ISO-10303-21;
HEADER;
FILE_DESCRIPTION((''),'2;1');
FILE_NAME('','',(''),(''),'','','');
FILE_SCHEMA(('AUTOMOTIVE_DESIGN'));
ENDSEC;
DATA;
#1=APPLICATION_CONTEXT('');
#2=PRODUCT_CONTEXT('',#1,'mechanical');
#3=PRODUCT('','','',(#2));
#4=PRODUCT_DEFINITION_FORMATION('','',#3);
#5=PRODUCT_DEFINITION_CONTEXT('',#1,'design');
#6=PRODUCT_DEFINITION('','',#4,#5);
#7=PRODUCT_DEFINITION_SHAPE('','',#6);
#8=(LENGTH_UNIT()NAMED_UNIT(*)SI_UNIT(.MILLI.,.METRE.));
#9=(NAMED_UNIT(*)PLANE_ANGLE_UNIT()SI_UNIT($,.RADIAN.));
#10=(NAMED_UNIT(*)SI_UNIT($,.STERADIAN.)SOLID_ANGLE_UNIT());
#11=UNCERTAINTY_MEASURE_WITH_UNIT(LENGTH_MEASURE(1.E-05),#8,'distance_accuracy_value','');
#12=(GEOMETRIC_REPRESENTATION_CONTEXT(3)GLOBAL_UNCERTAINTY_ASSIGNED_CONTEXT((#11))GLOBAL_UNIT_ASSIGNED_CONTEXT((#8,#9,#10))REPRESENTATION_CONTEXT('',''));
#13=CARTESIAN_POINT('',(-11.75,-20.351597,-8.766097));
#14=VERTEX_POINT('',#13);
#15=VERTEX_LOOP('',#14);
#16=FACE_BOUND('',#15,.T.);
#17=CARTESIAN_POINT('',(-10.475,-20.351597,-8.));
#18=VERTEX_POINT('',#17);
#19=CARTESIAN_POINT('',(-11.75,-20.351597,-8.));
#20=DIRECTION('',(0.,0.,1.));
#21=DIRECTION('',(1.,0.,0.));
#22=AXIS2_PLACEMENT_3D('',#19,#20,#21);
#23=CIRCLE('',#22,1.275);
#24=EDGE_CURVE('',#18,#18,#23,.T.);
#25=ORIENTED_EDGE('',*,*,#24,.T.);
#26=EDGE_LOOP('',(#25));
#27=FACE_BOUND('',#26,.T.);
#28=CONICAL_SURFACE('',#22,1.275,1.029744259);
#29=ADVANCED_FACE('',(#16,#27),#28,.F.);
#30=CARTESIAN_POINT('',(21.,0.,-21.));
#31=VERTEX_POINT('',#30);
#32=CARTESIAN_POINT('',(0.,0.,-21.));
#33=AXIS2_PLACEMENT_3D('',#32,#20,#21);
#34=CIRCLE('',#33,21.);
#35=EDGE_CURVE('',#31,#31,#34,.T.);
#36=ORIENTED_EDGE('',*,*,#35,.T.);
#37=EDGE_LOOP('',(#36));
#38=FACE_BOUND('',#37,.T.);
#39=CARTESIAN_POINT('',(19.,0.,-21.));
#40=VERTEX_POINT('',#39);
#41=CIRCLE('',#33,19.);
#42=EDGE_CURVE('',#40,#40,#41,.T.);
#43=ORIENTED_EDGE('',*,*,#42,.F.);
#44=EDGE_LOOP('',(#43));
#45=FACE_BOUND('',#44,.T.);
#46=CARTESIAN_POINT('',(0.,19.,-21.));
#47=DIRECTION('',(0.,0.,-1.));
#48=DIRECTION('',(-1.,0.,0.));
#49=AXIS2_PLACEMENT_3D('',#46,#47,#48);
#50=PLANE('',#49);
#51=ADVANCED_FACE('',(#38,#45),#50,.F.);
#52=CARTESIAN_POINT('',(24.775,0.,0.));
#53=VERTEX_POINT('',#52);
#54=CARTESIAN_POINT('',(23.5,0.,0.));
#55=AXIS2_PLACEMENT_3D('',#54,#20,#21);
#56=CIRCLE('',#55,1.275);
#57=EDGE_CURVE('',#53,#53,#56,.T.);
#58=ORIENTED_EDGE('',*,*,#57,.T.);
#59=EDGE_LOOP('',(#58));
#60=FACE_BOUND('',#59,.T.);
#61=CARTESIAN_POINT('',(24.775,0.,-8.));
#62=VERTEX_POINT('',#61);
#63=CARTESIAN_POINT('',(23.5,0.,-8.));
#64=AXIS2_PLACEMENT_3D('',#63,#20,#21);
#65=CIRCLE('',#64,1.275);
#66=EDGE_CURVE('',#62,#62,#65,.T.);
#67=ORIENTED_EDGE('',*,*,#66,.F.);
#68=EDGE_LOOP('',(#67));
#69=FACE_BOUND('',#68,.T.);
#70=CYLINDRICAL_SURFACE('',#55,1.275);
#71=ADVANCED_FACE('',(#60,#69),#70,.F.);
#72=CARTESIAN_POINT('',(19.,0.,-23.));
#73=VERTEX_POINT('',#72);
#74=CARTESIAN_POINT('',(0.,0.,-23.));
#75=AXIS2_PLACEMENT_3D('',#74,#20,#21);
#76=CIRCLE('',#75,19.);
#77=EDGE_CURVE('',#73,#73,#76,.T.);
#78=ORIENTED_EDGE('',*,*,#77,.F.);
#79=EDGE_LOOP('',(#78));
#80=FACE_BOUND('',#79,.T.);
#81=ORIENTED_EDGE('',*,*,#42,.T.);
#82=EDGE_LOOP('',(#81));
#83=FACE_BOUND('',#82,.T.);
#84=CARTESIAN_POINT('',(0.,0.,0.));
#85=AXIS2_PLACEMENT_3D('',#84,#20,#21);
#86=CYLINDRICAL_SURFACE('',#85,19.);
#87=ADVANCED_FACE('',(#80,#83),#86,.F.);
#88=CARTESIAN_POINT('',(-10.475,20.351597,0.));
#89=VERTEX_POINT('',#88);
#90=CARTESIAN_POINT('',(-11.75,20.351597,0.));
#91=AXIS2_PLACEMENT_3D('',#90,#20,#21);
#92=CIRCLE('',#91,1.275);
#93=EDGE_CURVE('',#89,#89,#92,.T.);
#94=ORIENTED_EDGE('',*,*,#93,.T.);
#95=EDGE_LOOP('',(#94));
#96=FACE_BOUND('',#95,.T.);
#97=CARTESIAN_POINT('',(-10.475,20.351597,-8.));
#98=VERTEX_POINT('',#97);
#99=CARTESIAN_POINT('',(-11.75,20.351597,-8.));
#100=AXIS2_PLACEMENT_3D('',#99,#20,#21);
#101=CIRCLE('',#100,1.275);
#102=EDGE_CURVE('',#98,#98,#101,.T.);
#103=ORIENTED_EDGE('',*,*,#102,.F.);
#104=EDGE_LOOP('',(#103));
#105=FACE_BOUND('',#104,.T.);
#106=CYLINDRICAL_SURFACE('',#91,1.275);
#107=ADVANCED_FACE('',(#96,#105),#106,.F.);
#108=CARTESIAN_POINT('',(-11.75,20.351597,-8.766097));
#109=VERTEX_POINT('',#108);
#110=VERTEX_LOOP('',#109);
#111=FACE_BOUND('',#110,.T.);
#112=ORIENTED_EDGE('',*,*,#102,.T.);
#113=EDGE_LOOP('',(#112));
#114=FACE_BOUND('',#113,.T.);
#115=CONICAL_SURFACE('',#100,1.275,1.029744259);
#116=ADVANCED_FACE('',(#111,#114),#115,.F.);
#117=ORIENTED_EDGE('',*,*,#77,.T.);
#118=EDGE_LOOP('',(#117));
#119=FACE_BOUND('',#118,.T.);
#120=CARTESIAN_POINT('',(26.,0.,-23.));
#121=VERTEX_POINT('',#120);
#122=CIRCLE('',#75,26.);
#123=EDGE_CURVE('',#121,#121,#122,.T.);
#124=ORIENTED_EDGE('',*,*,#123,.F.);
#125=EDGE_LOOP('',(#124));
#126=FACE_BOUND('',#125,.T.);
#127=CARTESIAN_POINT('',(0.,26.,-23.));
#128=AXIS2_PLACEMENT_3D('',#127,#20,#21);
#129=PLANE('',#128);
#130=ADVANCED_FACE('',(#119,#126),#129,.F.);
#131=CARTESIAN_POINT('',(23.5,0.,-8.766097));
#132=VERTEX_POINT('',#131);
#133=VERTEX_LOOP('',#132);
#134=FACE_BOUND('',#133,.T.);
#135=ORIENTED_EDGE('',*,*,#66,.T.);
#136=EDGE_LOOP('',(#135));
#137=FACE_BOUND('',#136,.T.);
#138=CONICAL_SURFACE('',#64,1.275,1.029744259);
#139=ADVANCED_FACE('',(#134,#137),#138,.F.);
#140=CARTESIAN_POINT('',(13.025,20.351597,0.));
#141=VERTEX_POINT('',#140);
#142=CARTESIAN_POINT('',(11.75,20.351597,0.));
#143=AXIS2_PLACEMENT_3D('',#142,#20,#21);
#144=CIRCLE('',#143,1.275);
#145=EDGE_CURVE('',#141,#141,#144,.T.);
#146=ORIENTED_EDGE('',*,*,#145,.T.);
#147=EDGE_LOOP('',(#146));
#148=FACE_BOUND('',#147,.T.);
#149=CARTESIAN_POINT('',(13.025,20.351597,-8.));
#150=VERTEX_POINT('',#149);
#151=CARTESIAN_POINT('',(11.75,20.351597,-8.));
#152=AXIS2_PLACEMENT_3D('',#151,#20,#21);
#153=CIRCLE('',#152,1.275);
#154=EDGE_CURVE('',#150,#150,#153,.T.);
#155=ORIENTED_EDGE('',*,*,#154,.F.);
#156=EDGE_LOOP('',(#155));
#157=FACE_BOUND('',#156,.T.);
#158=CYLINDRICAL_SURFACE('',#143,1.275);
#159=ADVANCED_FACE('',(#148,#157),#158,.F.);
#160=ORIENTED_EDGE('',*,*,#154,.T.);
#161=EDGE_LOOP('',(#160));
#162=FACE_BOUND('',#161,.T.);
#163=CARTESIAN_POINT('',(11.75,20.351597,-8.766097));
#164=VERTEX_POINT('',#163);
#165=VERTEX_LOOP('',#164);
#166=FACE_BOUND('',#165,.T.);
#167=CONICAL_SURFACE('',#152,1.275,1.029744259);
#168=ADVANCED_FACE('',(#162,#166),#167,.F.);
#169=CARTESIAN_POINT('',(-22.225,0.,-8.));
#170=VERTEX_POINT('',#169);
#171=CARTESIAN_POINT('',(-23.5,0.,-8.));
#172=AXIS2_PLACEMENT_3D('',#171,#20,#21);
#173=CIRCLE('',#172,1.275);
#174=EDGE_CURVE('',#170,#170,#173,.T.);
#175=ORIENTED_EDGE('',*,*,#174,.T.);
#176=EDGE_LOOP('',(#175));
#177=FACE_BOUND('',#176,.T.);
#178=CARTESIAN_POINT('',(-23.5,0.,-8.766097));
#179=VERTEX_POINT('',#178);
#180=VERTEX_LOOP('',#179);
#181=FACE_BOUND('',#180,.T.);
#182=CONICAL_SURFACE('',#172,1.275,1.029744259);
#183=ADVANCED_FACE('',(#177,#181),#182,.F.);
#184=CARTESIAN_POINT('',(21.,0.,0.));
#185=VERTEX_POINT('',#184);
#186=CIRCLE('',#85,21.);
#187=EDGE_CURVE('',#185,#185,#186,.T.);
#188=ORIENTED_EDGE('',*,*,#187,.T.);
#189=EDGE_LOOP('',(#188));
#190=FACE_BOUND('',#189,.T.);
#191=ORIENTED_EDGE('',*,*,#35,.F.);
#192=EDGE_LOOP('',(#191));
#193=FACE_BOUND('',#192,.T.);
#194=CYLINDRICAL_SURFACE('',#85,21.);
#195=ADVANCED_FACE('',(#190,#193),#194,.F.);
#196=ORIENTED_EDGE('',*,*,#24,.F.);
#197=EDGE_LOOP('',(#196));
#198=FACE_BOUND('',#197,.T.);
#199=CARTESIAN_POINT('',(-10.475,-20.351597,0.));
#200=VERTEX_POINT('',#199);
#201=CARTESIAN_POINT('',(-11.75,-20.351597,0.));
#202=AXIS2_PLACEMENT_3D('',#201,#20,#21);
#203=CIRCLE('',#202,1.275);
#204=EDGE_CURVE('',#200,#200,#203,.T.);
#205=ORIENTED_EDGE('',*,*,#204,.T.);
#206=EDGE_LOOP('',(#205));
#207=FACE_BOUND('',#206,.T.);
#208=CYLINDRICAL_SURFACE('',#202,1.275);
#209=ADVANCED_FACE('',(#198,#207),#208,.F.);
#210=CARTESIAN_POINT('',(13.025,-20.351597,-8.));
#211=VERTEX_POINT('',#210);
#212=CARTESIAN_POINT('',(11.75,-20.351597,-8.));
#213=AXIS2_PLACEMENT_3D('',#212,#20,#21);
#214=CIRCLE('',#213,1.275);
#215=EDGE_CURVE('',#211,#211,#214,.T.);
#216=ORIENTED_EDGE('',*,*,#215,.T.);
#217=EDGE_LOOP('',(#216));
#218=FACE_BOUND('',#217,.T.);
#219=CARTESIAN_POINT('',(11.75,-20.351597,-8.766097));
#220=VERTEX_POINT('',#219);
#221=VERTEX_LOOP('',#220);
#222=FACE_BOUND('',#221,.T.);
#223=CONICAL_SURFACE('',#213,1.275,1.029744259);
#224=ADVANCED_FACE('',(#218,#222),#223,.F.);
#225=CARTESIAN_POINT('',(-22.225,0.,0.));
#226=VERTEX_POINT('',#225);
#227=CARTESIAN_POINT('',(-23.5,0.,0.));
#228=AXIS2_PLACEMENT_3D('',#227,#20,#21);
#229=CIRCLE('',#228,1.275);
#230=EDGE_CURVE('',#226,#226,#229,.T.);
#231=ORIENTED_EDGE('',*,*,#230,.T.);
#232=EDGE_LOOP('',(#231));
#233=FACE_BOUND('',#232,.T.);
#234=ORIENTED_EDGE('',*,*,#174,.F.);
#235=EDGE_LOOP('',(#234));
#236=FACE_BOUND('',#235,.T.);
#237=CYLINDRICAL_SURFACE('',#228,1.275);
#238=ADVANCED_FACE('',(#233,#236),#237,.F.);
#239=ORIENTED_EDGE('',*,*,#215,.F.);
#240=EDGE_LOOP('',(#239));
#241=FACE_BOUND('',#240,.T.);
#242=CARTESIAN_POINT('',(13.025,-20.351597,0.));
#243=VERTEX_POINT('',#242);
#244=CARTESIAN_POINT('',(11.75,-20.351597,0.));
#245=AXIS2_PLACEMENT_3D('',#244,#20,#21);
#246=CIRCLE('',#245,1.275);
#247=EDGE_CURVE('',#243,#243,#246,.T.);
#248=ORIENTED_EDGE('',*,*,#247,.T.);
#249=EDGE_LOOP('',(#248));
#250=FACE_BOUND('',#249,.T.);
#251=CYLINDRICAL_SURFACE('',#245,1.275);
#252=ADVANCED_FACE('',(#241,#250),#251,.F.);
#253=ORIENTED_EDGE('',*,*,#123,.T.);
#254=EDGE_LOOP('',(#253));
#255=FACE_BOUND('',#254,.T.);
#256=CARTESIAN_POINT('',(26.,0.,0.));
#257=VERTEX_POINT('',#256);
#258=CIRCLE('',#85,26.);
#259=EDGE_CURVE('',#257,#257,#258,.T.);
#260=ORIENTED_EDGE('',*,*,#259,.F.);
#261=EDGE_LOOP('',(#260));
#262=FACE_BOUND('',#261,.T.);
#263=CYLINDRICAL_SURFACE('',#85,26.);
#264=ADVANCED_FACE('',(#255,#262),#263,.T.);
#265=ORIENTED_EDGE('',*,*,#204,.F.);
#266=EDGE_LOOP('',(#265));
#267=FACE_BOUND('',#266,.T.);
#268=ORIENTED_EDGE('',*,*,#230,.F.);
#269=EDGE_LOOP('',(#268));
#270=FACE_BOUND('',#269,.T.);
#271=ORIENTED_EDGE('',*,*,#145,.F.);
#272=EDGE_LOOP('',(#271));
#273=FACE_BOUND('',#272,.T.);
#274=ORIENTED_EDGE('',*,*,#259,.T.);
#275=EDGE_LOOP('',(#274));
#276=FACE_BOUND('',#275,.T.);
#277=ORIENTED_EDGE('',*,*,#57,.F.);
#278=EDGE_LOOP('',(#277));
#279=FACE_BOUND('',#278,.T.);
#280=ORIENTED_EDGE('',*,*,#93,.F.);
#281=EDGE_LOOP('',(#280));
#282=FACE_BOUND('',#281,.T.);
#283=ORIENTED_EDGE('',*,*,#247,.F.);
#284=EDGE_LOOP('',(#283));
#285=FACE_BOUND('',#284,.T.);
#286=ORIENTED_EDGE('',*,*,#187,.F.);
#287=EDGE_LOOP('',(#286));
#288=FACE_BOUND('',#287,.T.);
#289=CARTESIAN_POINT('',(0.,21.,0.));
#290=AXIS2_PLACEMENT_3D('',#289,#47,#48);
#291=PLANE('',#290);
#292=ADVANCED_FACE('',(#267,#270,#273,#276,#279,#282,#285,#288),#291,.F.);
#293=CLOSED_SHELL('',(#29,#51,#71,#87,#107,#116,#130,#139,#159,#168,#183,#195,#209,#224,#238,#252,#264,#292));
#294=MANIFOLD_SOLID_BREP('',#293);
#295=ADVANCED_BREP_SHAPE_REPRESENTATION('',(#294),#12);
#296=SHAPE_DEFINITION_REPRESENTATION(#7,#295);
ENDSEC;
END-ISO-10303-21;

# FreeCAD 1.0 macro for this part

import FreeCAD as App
import Part
import Sketcher
from FreeCAD import Vector
Q = App.Units.Quantity

doc = App.newDocument("Part")
body = doc.addObject("PartDesign::Body", "Body")

# Sketch on YZ plane
sketch1 = doc.addObject("Sketcher::SketchObject", "Sketch")
body.addObject(sketch1)
sketch1.AttachmentSupport = (doc.YZ_Plane, [""])
sketch1.MapMode = "FlatFace"
sketch1.addGeometry([
    Part.LineSegment(Vector(26, -23, 0), Vector(26, 0, 0)),  # 0
    Part.LineSegment(Vector(26, 0, 0), Vector(21, 0, 0)),  # 1
    Part.LineSegment(Vector(21, 0, 0), Vector(21, -21, 0)),  # 2
    Part.LineSegment(Vector(21, -21, 0), Vector(19, -21, 0)),  # 3
    Part.LineSegment(Vector(19, -21, 0), Vector(19, -23, 0)),  # 4
    Part.LineSegment(Vector(19, -23, 0), Vector(26, -23, 0)),  # 5
], False)
sketch1.addConstraint([
    Sketcher.Constraint("Coincident", 0, 2, 1, 1),
    Sketcher.Constraint("Coincident", 1, 2, 2, 1),
    Sketcher.Constraint("Coincident", 2, 2, 3, 1),
    Sketcher.Constraint("Coincident", 3, 2, 4, 1),
    Sketcher.Constraint("Coincident", 4, 2, 5, 1),
    Sketcher.Constraint("Coincident", 5, 2, 0, 1),
    Sketcher.Constraint("Vertical", 0),
    Sketcher.Constraint("Horizontal", 1),
    Sketcher.Constraint("Vertical", 2),
    Sketcher.Constraint("Horizontal", 3),
    Sketcher.Constraint("Vertical", 4),
    Sketcher.Constraint("Horizontal", 5),
    Sketcher.Constraint("PointOnObject", 0, 2, -1),
    Sketcher.Constraint("Equal", 3, 4),
    Sketcher.Constraint("DistanceX", 1, 2, 1, 1, 5.0),
    Sketcher.Constraint("DistanceX", 3, 2, 3, 1, 2.0),
    Sketcher.Constraint("DistanceY", 0, 1, 0, 2, 23.0),
    Sketcher.Constraint("DistanceX", -1, 1, 0, 2, 26.0),
])
revolution = doc.addObject("PartDesign::Revolution", "Revolution")
body.addObject(revolution)
revolution.Profile = sketch1
revolution.ReferenceAxis = (sketch1, ["V_Axis"])
revolution.Angle = 360

# Sketch on YZ plane
sketch2 = doc.addObject("Sketcher::SketchObject", "Sketch001")
body.addObject(sketch2)
sketch2.AttachmentSupport = (doc.YZ_Plane, [""])
sketch2.MapMode = "FlatFace"
sketch2.AttachmentOffset = App.Placement(Vector(0, 0, 23.5), App.Rotation())
sketch2.addGeometry([
    Part.LineSegment(Vector(0, -8.8, 0), Vector(0, 0, 0)),
    Part.LineSegment(Vector(0, 0, 0), Vector(-1.3, 0, 0)),
    Part.LineSegment(Vector(-1.3, 0, 0), Vector(-1.3, -8, 0)),
    Part.LineSegment(Vector(-1.3, -8, 0), Vector(0, -8.8, 0)),
], False)
sketch2.addConstraint([
    Sketcher.Constraint("Coincident", 0, 2, 1, 1),
    Sketcher.Constraint("Coincident", 1, 2, 2, 1),
    Sketcher.Constraint("Coincident", 2, 2, 3, 1),
    Sketcher.Constraint("Coincident", 3, 2, 0, 1),
    Sketcher.Constraint("Vertical", 0),
    Sketcher.Constraint("Horizontal", 1),
    Sketcher.Constraint("Vertical", 2),
    Sketcher.Constraint("Coincident", 0, 2, -1, 1),
    Sketcher.Constraint("DistanceY", 2, 2, 2, 1, 8.0),
    Sketcher.Constraint("Angle", 3, Q("-31 deg")),
    Sketcher.Constraint("DistanceX", 1, 2, 1, 1, 1.275),
])
groove = doc.addObject("PartDesign::Groove", "Groove")
body.addObject(groove)
groove.Profile = sketch2
groove.ReferenceAxis = (sketch2, ["V_Axis"])
groove.Angle = 360
doc.recompute()

polarpattern = doc.addObject("PartDesign::PolarPattern", "PolarPattern")
body.addObject(polarpattern)
polarpattern.Originals = [groove]
polarpattern.Axis = (doc.Z_Axis, [""])
polarpattern.Angle = 360
polarpattern.Occurrences = 6
body.Tip = polarpattern

doc.recompute()
